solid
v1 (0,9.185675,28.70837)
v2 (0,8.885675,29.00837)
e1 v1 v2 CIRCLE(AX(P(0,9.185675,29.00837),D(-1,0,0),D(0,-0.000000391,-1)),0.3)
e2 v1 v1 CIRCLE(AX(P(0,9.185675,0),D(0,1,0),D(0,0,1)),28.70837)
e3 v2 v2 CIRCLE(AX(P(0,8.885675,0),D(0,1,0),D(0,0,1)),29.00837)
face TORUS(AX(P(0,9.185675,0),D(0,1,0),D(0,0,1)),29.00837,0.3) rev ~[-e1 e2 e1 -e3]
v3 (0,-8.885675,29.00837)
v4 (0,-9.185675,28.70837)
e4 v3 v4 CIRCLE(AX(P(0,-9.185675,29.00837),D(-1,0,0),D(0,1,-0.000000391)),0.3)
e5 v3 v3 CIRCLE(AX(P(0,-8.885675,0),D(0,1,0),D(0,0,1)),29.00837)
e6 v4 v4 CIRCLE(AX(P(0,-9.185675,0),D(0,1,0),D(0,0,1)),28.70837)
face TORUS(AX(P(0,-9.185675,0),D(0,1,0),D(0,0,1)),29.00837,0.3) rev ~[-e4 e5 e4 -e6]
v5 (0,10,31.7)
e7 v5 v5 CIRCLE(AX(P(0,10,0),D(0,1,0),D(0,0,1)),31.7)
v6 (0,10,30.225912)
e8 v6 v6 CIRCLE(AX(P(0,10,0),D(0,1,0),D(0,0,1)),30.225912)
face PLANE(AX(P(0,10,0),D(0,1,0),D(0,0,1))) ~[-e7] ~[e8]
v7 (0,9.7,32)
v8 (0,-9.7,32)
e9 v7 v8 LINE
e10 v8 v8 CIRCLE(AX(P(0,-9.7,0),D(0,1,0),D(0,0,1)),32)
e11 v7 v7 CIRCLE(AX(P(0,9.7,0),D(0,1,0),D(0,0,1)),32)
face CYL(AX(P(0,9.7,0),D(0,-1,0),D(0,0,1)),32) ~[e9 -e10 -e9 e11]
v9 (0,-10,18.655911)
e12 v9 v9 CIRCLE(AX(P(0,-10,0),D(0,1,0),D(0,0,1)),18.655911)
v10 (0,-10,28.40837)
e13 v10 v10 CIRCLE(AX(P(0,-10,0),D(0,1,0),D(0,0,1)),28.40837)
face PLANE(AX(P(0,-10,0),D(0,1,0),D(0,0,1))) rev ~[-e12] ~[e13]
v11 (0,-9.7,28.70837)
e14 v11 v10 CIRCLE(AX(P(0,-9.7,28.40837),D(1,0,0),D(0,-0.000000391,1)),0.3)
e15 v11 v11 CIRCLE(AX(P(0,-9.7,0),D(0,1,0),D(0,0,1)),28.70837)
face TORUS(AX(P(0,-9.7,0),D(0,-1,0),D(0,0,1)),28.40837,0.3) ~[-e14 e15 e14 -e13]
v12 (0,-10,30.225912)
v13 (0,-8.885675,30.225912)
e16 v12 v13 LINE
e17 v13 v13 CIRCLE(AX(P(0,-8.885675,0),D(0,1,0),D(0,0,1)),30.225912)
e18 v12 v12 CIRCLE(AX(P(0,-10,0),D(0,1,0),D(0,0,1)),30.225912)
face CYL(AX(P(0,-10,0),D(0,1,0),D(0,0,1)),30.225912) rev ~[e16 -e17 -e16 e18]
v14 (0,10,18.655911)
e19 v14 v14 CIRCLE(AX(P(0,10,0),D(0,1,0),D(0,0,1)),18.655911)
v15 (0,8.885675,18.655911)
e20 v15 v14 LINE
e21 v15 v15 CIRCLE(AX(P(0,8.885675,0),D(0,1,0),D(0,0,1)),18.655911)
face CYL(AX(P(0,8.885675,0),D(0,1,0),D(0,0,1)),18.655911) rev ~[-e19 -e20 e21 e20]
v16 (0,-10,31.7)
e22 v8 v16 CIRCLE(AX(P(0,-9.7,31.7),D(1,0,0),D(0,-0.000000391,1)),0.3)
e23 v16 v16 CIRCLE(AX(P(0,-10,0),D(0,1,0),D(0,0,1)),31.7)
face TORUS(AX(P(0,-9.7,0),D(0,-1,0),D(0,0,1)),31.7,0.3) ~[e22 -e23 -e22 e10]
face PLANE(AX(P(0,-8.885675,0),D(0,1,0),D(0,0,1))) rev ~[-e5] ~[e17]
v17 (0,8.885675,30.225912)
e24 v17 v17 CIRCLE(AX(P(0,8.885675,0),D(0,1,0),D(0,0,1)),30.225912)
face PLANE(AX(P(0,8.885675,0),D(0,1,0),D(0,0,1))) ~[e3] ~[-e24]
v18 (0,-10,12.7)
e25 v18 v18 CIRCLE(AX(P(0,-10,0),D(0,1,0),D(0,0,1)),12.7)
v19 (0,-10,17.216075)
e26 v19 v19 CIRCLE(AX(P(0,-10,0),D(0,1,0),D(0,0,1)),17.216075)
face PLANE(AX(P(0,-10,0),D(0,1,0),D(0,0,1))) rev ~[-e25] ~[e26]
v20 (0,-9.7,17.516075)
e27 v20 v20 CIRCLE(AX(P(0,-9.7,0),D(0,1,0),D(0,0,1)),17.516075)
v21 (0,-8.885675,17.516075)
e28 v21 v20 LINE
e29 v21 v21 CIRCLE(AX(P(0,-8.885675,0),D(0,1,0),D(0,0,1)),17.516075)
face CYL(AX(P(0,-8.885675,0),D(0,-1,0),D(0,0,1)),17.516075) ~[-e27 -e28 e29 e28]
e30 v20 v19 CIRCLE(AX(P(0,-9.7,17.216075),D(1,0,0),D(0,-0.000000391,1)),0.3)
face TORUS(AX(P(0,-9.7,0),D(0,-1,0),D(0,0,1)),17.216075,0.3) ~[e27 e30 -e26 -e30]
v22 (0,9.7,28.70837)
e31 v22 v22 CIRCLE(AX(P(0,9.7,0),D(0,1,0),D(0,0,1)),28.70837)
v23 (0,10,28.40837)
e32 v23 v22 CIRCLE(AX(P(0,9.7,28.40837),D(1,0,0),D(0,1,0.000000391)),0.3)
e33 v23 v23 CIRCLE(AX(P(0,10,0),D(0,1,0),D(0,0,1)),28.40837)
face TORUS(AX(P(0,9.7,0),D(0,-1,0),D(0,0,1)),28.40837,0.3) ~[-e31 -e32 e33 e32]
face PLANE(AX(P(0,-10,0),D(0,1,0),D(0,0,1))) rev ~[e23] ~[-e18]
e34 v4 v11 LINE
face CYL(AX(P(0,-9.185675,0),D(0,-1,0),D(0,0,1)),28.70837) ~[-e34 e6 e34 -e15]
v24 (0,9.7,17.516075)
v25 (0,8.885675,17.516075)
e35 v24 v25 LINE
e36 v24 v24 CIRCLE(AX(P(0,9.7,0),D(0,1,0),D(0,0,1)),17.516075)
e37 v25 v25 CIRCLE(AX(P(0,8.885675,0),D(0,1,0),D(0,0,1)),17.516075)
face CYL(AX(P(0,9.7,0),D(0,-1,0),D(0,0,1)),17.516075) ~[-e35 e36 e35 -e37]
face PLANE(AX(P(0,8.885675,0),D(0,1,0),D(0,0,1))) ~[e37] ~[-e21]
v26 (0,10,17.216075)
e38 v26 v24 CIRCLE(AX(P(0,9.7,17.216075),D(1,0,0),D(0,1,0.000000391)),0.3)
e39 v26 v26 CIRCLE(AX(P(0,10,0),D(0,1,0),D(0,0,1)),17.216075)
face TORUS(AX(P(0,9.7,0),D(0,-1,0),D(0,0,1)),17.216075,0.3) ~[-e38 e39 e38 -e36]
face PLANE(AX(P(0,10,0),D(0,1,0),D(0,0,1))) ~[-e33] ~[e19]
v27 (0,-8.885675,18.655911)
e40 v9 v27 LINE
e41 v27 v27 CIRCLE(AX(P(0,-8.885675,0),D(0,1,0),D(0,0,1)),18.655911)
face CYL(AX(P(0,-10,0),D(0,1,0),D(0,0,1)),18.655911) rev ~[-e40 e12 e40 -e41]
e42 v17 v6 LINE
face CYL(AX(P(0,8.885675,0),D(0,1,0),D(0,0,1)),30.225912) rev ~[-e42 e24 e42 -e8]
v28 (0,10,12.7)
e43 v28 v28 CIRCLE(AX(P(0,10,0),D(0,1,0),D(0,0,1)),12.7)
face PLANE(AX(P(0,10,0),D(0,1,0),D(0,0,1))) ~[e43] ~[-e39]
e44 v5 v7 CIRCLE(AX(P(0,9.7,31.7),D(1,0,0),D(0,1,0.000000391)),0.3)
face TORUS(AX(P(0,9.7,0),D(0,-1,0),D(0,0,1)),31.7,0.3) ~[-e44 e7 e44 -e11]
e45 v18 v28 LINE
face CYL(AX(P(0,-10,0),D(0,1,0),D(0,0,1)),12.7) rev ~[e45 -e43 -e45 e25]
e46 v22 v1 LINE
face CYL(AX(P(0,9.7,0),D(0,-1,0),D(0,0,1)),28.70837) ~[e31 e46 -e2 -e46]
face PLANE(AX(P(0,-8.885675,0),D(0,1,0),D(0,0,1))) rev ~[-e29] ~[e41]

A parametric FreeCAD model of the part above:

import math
import FreeCAD as App
import Part
import Sketcher

doc = App.newDocument("Part")
body = doc.addObject("PartDesign::Body", "Body")

# Sketch on YZ plane
sketch1 = body.newObject("Sketcher::SketchObject", "Sketch")
sketch1.AttachmentSupport = (doc.getObject("YZ_Plane"), [""])
sketch1.MapMode = "FlatFace"
sketch1.addGeometry(Part.LineSegment(App.Vector(-10, 12.7, 0), App.Vector(10, 12.7, 0)), False)
sketch1.addGeometry(Part.LineSegment(App.Vector(10, 12.7, 0), App.Vector(10, 17.22, 0)), False)
sketch1.addGeometry(Part.ArcOfCircle(Part.Circle(App.Vector(9.7, 17.22, 0), App.Vector(0, 0, 1), 0.3), math.radians(0), math.radians(90)), False)
sketch1.addGeometry(Part.LineSegment(App.Vector(9.7, 17.52, 0), App.Vector(8.89, 17.52, 0)), False)
sketch1.addGeometry(Part.LineSegment(App.Vector(8.89, 17.52, 0), App.Vector(8.89, 18.66, 0)), False)
sketch1.addGeometry(Part.LineSegment(App.Vector(8.89, 18.66, 0), App.Vector(10, 18.66, 0)), False)
sketch1.addGeometry(Part.LineSegment(App.Vector(10, 18.66, 0), App.Vector(10, 28.41, 0)), False)
sketch1.addGeometry(Part.ArcOfCircle(Part.Circle(App.Vector(9.7, 28.41, 0), App.Vector(0, 0, 1), 0.3), math.radians(0), math.radians(90)), False)
sketch1.addGeometry(Part.LineSegment(App.Vector(9.7, 28.71, 0), App.Vector(9.19, 28.71, 0)), False)
sketch1.addGeometry(Part.ArcOfCircle(Part.Circle(App.Vector(9.19, 29.01, 0), App.Vector(0, 0, 1), 0.3), math.radians(-180), math.radians(-90)), False)
sketch1.addGeometry(Part.LineSegment(App.Vector(8.89, 29.01, 0), App.Vector(8.89, 30.23, 0)), False)
sketch1.addGeometry(Part.LineSegment(App.Vector(8.89, 30.23, 0), App.Vector(10, 30.23, 0)), False)
sketch1.addGeometry(Part.LineSegment(App.Vector(10, 30.23, 0), App.Vector(10, 31.7, 0)), False)
sketch1.addGeometry(Part.ArcOfCircle(Part.Circle(App.Vector(9.7, 31.7, 0), App.Vector(0, 0, 1), 0.3), math.radians(0), math.radians(90)), False)
sketch1.addGeometry(Part.LineSegment(App.Vector(9.7, 32, 0), App.Vector(-9.7, 32, 0)), False)
sketch1.addGeometry(Part.ArcOfCircle(Part.Circle(App.Vector(-9.7, 31.7, 0), App.Vector(0, 0, 1), 0.3), math.radians(90), math.radians(180)), False)
sketch1.addGeometry(Part.LineSegment(App.Vector(-10, 31.7, 0), App.Vector(-10, 30.23, 0)), False)
sketch1.addGeometry(Part.LineSegment(App.Vector(-10, 30.23, 0), App.Vector(-8.89, 30.23, 0)), False)
sketch1.addGeometry(Part.LineSegment(App.Vector(-8.89, 30.23, 0), App.Vector(-8.89, 29.01, 0)), False)
sketch1.addGeometry(Part.ArcOfCircle(Part.Circle(App.Vector(-9.19, 29.01, 0), App.Vector(0, 0, 1), 0.3), math.radians(-90), math.radians(0)), False)
sketch1.addGeometry(Part.LineSegment(App.Vector(-9.19, 28.71, 0), App.Vector(-9.7, 28.71, 0)), False)
sketch1.addGeometry(Part.ArcOfCircle(Part.Circle(App.Vector(-9.7, 28.41, 0), App.Vector(0, 0, 1), 0.3), math.radians(90), math.radians(180)), False)
sketch1.addGeometry(Part.LineSegment(App.Vector(-10, 28.41, 0), App.Vector(-10, 18.66, 0)), False)
sketch1.addGeometry(Part.LineSegment(App.Vector(-10, 18.66, 0), App.Vector(-8.89, 18.66, 0)), False)
sketch1.addGeometry(Part.LineSegment(App.Vector(-8.89, 18.66, 0), App.Vector(-8.89, 17.52, 0)), False)
sketch1.addGeometry(Part.LineSegment(App.Vector(-8.89, 17.52, 0), App.Vector(-9.7, 17.52, 0)), False)
sketch1.addGeometry(Part.ArcOfCircle(Part.Circle(App.Vector(-9.7, 17.22, 0), App.Vector(0, 0, 1), 0.3), math.radians(90), math.radians(180)), False)
sketch1.addGeometry(Part.LineSegment(App.Vector(-10, 17.22, 0), App.Vector(-10, 12.7, 0)), False)
sketch1.addConstraint(Sketcher.Constraint("Coincident", 0, 2, 1, 1))
sketch1.addConstraint(Sketcher.Constraint("Tangent", 1, 2, 2, 1))
sketch1.addConstraint(Sketcher.Constraint("Tangent", 2, 2, 3, 1))
sketch1.addConstraint(Sketcher.Constraint("Coincident", 3, 2, 4, 1))
sketch1.addConstraint(Sketcher.Constraint("Coincident", 4, 2, 5, 1))
sketch1.addConstraint(Sketcher.Constraint("Coincident", 5, 2, 6, 1))
sketch1.addConstraint(Sketcher.Constraint("Tangent", 6, 2, 7, 1))
sketch1.addConstraint(Sketcher.Constraint("Tangent", 7, 2, 8, 1))
sketch1.addConstraint(Sketcher.Constraint("Tangent", 8, 2, 9, 2))
sketch1.addConstraint(Sketcher.Constraint("Tangent", 9, 1, 10, 1))
sketch1.addConstraint(Sketcher.Constraint("Coincident", 10, 2, 11, 1))
sketch1.addConstraint(Sketcher.Constraint("Coincident", 11, 2, 12, 1))
sketch1.addConstraint(Sketcher.Constraint("Tangent", 12, 2, 13, 1))
sketch1.addConstraint(Sketcher.Constraint("Tangent", 13, 2, 14, 1))
sketch1.addConstraint(Sketcher.Constraint("Tangent", 14, 2, 15, 1))
sketch1.addConstraint(Sketcher.Constraint("Tangent", 15, 2, 16, 1))
sketch1.addConstraint(Sketcher.Constraint("Coincident", 16, 2, 17, 1))
sketch1.addConstraint(Sketcher.Constraint("Coincident", 17, 2, 18, 1))
sketch1.addConstraint(Sketcher.Constraint("Tangent", 18, 2, 19, 2))
sketch1.addConstraint(Sketcher.Constraint("Tangent", 19, 1, 20, 1))
sketch1.addConstraint(Sketcher.Constraint("Tangent", 20, 2, 21, 1))
sketch1.addConstraint(Sketcher.Constraint("Tangent", 21, 2, 22, 1))
sketch1.addConstraint(Sketcher.Constraint("Coincident", 22, 2, 23, 1))
sketch1.addConstraint(Sketcher.Constraint("Coincident", 23, 2, 24, 1))
sketch1.addConstraint(Sketcher.Constraint("Coincident", 24, 2, 25, 1))
sketch1.addConstraint(Sketcher.Constraint("Tangent", 25, 2, 26, 1))
sketch1.addConstraint(Sketcher.Constraint("Tangent", 26, 2, 27, 1))
sketch1.addConstraint(Sketcher.Constraint("Coincident", 27, 2, 0, 1))
sketch1.addConstraint(Sketcher.Constraint("Horizontal", 0))
sketch1.addConstraint(Sketcher.Constraint("Vertical", 1))
sketch1.addConstraint(Sketcher.Constraint("Horizontal", 3))
sketch1.addConstraint(Sketcher.Constraint("Vertical", 4))
sketch1.addConstraint(Sketcher.Constraint("Horizontal", 5))
sketch1.addConstraint(Sketcher.Constraint("Vertical", 6))
sketch1.addConstraint(Sketcher.Constraint("Horizontal", 8))
sketch1.addConstraint(Sketcher.Constraint("Vertical", 10))
sketch1.addConstraint(Sketcher.Constraint("Horizontal", 11))
sketch1.addConstraint(Sketcher.Constraint("Vertical", 12))
sketch1.addConstraint(Sketcher.Constraint("Horizontal", 14))
sketch1.addConstraint(Sketcher.Constraint("Vertical", 16))
sketch1.addConstraint(Sketcher.Constraint("Horizontal", 17))
sketch1.addConstraint(Sketcher.Constraint("Vertical", 18))
sketch1.addConstraint(Sketcher.Constraint("Horizontal", 20))
sketch1.addConstraint(Sketcher.Constraint("Vertical", 22))
sketch1.addConstraint(Sketcher.Constraint("Horizontal", 23))
sketch1.addConstraint(Sketcher.Constraint("Vertical", 24))
sketch1.addConstraint(Sketcher.Constraint("Horizontal", 25))
sketch1.addConstraint(Sketcher.Constraint("Vertical", 27))
sketch1.addConstraint(Sketcher.Constraint("Equal", 2, 7))
sketch1.addConstraint(Sketcher.Constraint("Equal", 7, 9))
sketch1.addConstraint(Sketcher.Constraint("Equal", 9, 13))
sketch1.addConstraint(Sketcher.Constraint("Equal", 13, 15))
sketch1.addConstraint(Sketcher.Constraint("Equal", 15, 19))
sketch1.addConstraint(Sketcher.Constraint("Equal", 19, 21))
sketch1.addConstraint(Sketcher.Constraint("Equal", 21, 26))
sketch1.addConstraint(Sketcher.Constraint("Symmetric", 9, 3, 19, 3, -2))
sketch1.addConstraint(Sketcher.Constraint("Symmetric", 2, 3, 26, 3, -2))
sketch1.addConstraint(Sketcher.Constraint("Symmetric", 11, 2, 16, 2, -2))
sketch1.addConstraint(Sketcher.Constraint("Symmetric", 5, 2, 22, 2, -2))
sketch1.addConstraint(Sketcher.Constraint("Vertical", 2, 3, 7, 3))
sketch1.addConstraint(Sketcher.Constraint("Vertical", 7, 3, 13, 3))
sketch1.addConstraint(Sketcher.Constraint("Vertical", 4, 2, 9, 1))
sketch1.addConstraint(Sketcher.Constraint("Vertical", 18, 2, 23, 2))
sketch1.addConstraint(Sketcher.Constraint("Radius", 2, 0.3))
sketch1.addConstraint(Sketcher.Constraint("DistanceX", 0, 1, 0, 2, 20.0))
sketch1.addConstraint(Sketcher.Constraint("DistanceY", -1, 1, 13, 2, 32.0))
sketch1.addConstraint(Sketcher.Constraint("DistanceY", 0, 2, 13, 3, 19.0))
sketch1.addConstraint(Sketcher.Constraint("DistanceY", 6, 1, 6, 2, 9.752459))
sketch1.addConstraint(Sketcher.Constraint("DistanceX", 3, 2, 3, 1, 0.814325))
sketch1.addConstraint(Sketcher.Constraint("DistanceY", 1, 1, 1, 2, 4.516075))
sketch1.addConstraint(Sketcher.Constraint("DistanceY", 4, 1, 4, 2, 1.139836))
sketch1.addConstraint(Sketcher.Constraint("DistanceY", 10, 1, 10, 2, 1.217542))
revolution = body.newObject("PartDesign::Revolution", "Revolution")
revolution.Profile = sketch1
revolution.ReferenceAxis = (sketch1, ["H_Axis"])
revolution.Angle = 360

doc.recompute()
